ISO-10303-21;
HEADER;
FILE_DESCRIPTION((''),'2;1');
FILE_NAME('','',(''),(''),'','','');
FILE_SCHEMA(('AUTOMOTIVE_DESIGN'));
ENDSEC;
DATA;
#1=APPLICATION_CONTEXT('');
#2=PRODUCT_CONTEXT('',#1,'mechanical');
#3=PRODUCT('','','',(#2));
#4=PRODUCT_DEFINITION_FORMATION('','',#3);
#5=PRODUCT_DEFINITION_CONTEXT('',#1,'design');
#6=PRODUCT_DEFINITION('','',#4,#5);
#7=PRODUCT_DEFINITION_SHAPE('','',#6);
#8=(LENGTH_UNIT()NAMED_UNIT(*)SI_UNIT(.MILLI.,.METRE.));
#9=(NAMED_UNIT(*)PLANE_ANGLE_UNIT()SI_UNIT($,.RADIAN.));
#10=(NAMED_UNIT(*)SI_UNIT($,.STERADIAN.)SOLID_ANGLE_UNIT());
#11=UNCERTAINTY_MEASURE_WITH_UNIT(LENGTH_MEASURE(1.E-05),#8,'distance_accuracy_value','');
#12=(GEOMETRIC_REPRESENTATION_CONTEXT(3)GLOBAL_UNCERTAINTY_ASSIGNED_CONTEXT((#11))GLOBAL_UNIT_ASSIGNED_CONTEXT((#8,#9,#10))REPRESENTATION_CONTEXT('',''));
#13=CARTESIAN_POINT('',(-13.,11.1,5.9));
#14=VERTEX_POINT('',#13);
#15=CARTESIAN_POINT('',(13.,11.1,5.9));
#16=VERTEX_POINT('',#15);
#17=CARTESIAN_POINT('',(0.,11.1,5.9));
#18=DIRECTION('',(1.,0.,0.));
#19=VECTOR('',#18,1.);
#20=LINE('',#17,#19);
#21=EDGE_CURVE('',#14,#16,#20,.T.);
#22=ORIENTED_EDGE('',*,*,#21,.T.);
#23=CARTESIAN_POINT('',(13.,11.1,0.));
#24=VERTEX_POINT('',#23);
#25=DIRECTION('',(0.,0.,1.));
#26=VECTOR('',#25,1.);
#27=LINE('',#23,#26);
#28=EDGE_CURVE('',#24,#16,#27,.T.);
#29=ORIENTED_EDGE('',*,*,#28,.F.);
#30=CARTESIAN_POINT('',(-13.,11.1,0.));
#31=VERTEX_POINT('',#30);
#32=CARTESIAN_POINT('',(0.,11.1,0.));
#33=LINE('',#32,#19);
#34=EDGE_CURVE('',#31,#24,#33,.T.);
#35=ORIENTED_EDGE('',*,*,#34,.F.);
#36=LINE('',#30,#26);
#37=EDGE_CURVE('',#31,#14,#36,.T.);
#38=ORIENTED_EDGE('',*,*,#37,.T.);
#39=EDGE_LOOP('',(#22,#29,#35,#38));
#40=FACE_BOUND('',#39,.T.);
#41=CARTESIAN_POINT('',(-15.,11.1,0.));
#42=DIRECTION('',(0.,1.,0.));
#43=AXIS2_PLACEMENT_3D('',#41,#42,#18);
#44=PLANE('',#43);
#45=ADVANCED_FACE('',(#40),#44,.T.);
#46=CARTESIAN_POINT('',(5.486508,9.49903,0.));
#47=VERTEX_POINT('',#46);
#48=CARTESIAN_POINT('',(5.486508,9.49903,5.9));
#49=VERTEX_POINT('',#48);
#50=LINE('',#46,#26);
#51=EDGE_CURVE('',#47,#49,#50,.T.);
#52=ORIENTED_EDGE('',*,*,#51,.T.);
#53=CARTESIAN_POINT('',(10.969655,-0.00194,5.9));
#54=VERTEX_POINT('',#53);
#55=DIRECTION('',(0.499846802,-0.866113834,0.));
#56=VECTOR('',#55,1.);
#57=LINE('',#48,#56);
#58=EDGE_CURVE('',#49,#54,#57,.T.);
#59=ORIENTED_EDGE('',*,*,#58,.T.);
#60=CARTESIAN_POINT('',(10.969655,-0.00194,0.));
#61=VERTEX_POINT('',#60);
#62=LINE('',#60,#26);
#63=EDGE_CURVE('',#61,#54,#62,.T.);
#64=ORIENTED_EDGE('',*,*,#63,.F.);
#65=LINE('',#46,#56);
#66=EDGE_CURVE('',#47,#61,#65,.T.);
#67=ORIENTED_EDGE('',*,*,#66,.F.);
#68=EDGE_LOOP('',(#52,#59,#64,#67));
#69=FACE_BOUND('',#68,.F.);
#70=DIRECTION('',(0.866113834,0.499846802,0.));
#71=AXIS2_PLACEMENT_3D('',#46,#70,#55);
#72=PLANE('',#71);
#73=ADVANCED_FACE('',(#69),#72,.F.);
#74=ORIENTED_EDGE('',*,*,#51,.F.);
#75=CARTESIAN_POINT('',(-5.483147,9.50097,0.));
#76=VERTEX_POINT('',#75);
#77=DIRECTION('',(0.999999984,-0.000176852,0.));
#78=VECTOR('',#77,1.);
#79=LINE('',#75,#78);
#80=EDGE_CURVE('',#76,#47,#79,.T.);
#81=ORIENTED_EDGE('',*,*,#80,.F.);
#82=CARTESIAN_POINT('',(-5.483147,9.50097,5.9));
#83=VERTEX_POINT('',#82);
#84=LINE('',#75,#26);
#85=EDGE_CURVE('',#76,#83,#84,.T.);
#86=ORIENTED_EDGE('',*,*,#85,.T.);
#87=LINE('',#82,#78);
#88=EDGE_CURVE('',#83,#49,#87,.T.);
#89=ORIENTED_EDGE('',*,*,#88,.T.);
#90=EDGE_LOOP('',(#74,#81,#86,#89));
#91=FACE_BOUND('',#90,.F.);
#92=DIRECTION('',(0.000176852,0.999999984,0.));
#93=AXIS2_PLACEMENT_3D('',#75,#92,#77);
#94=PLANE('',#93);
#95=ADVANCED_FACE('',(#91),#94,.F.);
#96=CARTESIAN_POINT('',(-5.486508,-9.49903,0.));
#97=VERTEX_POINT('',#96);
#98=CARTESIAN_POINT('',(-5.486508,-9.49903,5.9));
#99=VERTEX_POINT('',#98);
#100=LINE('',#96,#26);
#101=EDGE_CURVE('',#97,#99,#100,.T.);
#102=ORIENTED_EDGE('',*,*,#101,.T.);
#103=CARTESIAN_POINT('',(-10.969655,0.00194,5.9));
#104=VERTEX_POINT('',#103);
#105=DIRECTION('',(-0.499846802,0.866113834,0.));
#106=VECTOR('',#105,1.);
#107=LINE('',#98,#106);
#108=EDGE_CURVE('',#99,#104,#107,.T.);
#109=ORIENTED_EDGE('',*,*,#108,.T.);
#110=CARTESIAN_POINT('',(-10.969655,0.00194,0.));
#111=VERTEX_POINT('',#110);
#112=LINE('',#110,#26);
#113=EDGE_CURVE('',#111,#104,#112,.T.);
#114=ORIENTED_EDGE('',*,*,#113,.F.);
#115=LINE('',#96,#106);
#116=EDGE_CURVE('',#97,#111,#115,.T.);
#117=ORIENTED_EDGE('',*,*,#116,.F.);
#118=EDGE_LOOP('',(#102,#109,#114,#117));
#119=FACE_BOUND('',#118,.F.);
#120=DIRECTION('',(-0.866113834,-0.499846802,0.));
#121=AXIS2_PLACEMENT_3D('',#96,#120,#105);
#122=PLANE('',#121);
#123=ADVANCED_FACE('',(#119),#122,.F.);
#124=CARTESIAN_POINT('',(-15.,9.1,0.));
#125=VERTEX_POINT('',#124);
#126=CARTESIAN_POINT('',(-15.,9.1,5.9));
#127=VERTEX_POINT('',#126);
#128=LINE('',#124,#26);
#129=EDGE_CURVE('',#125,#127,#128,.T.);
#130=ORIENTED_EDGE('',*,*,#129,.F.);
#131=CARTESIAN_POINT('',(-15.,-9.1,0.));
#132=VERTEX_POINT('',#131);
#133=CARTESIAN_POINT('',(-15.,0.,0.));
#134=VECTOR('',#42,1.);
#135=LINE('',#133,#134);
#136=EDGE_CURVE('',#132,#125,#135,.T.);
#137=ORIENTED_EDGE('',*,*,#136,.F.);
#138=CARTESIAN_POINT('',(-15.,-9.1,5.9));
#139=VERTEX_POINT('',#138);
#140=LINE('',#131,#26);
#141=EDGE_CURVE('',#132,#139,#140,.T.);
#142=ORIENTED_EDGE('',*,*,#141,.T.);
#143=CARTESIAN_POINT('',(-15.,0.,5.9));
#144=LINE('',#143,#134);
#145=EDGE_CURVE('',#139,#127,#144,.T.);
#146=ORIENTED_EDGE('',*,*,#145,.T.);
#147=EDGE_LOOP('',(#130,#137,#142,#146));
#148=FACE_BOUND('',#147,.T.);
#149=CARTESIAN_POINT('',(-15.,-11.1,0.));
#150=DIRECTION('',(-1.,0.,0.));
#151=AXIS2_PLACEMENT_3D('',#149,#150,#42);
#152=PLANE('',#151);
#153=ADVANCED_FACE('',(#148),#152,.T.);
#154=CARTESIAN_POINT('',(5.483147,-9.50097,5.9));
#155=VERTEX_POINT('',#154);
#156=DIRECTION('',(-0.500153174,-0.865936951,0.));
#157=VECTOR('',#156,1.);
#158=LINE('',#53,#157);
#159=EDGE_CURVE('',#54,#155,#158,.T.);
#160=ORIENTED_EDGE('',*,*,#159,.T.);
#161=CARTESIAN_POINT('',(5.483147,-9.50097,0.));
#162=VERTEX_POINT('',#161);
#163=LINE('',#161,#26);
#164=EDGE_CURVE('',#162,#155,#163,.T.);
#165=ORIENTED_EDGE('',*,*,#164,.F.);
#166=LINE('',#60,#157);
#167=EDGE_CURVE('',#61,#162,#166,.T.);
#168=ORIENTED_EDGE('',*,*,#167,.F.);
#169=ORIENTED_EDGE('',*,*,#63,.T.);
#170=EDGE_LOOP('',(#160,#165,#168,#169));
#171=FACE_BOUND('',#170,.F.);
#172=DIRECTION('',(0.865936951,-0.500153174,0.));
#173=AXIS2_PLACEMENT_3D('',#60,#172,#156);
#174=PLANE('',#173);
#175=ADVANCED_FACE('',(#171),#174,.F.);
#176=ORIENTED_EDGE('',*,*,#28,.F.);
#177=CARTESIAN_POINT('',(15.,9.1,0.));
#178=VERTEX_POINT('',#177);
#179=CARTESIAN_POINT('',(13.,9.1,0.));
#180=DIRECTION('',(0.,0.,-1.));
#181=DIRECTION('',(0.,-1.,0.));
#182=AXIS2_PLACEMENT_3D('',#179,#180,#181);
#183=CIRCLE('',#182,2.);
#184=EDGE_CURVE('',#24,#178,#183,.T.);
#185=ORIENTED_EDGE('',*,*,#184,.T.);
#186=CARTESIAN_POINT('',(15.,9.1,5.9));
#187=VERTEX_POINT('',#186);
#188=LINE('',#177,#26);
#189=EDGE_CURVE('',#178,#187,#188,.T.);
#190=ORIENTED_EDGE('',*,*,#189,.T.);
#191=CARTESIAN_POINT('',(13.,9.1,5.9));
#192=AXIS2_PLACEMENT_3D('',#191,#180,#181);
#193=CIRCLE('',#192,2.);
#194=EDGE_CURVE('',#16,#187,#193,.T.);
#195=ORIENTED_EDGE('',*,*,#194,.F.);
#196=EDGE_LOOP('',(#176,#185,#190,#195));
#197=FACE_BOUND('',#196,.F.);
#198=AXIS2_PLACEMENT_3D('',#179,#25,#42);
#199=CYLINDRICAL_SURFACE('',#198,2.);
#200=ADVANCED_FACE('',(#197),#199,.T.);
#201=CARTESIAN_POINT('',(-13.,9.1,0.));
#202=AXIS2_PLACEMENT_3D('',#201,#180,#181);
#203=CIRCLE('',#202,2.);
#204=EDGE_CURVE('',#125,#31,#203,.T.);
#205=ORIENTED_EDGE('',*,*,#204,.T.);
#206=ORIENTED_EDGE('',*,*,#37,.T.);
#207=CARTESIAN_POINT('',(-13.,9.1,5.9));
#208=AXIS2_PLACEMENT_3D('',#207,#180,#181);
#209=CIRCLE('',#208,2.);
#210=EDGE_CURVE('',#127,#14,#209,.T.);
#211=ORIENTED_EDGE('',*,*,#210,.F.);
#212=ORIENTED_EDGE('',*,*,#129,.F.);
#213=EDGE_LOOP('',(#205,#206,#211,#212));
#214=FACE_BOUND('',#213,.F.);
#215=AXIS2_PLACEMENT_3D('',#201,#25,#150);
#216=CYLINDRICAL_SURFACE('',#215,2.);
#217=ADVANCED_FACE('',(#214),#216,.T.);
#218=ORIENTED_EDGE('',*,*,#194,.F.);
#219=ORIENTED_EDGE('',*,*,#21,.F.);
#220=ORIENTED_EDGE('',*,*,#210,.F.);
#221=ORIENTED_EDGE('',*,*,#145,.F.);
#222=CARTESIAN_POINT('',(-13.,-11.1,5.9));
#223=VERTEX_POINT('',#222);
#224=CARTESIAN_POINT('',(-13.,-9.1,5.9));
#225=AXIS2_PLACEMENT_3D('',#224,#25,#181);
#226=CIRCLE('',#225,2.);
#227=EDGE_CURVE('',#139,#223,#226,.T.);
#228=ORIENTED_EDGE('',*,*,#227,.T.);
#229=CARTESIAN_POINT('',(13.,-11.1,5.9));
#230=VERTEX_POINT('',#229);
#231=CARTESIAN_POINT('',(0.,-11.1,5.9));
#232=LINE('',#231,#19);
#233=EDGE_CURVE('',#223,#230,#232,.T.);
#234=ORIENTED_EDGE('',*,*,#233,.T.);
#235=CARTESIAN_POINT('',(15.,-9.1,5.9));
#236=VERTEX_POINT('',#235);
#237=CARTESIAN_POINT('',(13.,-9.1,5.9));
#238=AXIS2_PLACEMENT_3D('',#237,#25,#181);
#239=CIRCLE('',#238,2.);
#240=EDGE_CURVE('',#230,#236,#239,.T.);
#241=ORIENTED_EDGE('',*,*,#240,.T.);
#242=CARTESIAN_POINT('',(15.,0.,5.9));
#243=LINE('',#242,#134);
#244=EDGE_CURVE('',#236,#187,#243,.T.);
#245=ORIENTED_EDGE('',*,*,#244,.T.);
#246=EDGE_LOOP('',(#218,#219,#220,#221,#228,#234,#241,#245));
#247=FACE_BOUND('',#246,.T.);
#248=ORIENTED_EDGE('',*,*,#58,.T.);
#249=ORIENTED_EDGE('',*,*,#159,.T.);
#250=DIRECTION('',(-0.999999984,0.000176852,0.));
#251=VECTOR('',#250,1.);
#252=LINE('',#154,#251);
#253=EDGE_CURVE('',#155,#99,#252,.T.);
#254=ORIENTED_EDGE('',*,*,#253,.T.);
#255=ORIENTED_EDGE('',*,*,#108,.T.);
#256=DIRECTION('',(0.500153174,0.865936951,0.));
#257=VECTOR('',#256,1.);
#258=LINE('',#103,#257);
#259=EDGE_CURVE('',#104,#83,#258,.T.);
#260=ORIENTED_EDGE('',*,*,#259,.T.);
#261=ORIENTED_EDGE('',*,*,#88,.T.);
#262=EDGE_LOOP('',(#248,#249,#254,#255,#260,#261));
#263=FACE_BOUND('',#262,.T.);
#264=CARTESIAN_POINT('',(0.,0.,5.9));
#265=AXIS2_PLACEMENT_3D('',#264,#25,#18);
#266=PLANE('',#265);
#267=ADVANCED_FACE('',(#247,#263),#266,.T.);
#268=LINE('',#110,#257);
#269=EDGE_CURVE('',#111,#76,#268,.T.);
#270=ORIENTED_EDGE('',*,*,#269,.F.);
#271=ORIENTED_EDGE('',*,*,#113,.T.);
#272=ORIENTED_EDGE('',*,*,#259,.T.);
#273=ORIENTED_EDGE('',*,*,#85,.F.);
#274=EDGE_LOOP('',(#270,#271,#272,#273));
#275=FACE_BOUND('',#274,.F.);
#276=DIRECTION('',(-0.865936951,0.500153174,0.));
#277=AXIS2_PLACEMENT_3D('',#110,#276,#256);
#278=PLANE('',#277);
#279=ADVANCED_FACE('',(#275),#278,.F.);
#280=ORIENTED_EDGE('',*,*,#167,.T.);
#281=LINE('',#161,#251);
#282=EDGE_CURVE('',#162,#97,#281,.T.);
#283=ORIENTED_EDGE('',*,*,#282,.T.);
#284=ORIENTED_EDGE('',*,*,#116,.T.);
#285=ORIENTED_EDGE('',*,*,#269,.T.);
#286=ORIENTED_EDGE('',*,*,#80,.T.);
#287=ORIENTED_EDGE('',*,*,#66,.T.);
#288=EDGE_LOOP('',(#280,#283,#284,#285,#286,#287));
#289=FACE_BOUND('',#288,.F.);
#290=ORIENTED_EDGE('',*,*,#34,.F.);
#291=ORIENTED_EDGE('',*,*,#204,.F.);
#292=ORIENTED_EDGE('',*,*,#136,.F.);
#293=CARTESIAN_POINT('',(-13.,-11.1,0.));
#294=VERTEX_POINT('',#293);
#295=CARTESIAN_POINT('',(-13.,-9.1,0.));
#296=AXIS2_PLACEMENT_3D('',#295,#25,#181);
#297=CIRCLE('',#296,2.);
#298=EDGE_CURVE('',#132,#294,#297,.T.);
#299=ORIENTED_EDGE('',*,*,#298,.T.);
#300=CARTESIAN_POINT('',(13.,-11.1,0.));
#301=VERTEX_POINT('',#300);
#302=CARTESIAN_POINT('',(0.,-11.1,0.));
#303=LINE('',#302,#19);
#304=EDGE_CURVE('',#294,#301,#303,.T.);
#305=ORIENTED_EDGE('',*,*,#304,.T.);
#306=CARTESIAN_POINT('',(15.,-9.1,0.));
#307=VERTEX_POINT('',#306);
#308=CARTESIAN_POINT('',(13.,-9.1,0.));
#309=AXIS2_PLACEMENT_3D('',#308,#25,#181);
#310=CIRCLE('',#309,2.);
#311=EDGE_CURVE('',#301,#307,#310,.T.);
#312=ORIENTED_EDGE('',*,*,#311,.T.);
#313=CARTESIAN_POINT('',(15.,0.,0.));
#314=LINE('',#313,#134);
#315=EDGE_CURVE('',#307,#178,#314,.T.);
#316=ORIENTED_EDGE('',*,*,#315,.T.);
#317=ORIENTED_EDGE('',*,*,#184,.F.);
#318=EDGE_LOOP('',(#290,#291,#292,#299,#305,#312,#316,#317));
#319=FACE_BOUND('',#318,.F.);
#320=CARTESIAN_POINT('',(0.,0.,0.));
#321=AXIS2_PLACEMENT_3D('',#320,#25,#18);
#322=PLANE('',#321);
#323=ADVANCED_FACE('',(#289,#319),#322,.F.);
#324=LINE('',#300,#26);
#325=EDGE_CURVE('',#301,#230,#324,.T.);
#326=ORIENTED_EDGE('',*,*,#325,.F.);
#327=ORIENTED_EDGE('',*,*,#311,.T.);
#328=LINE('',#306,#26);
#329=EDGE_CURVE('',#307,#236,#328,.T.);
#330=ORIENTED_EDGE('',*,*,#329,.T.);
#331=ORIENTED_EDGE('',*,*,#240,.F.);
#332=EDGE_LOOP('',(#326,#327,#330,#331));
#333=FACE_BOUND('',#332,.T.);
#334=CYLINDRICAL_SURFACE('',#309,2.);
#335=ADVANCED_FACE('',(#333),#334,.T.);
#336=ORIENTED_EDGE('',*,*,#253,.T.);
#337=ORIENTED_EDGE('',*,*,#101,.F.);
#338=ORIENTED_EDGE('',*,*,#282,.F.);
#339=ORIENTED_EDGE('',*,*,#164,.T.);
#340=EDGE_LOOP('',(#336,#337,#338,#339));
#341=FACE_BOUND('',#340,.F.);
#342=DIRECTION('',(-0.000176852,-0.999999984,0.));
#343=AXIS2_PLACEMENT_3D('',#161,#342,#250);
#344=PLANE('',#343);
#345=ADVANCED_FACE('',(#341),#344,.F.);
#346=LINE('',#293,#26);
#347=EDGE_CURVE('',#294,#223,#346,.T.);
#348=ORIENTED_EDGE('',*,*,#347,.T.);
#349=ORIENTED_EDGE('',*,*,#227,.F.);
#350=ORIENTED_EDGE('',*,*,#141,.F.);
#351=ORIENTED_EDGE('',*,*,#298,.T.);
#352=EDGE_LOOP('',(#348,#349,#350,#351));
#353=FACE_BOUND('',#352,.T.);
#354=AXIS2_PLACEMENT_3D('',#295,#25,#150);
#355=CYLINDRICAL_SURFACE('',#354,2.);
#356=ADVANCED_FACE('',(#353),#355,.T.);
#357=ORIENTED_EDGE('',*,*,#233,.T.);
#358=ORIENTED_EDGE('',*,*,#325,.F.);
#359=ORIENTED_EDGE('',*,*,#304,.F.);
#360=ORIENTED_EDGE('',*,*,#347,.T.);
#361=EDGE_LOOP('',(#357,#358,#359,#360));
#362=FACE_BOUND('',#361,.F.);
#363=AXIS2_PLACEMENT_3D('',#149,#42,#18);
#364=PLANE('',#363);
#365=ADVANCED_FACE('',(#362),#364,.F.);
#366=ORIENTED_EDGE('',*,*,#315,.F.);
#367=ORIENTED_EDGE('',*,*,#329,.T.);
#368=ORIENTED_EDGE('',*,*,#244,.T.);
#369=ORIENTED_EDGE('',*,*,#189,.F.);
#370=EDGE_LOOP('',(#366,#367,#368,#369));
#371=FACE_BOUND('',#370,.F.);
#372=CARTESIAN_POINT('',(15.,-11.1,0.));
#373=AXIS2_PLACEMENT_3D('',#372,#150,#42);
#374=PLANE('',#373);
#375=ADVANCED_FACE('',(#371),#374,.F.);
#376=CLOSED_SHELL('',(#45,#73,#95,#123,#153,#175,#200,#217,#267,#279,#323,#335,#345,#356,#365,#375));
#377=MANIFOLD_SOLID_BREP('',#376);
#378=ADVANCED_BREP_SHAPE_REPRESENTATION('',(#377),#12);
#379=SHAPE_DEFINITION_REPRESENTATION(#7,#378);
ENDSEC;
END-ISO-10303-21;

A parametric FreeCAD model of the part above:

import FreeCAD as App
import Part
import Sketcher
Q = App.Units.Quantity


def edges_at(feature, points):
    """Names of the edges that pass closest to the given points."""
    edges = feature.Shape.Edges
    near = lambda p: min(range(len(edges)), key=lambda i: edges[i].distToShape(Part.Vertex(*p))[0])
    return sorted({f"Edge{near(p) + 1}" for p in points})


def add_polygon(sketch, points):
    """Adds a closed chain of lines whose ends are joined by coincident constraints."""
    first, n = sketch.GeometryCount, len(points)
    for a, b in zip(points, points[1:] + points[:1]):
        sketch.addGeometry(Part.LineSegment(App.Vector(*a, 0), App.Vector(*b, 0)), False)
    for i in range(n):
        sketch.addConstraint(Sketcher.Constraint("Coincident", first + i, 2, first + (i + 1) % n, 1))

doc = App.newDocument("Part")
body = doc.addObject("PartDesign::Body", "Body")

# Sketch on XY plane
sketch1 = body.newObject("Sketcher::SketchObject", "Sketch")
sketch1.AttachmentSupport = (doc.getObject("XY_Plane"), [""])
sketch1.MapMode = "FlatFace"
add_polygon(sketch1, [(-15, 11.1), (-15, -11.1), (15, -11.1), (15, 11.1)])  # lines 0-3
add_polygon(sketch1, [(-10.969655, 0.00194), (-5.483147, 9.50097), (5.486508, 9.49903), (10.969655, -0.00194), (5.483147, -9.50097), (-5.486508, -9.49903)])  # lines 4-9
sketch1.addConstraint(Sketcher.Constraint("Vertical", 0))
sketch1.addConstraint(Sketcher.Constraint("Horizontal", 1))
sketch1.addConstraint(Sketcher.Constraint("Vertical", 2))
sketch1.addConstraint(Sketcher.Constraint("Horizontal", 3))
sketch1.addConstraint(Sketcher.Constraint("Symmetric", 0, 2, 2, 2, -1, 1))
sketch1.addConstraint(Sketcher.Constraint("Symmetric", 4, 2, 7, 2, -1, 1))
sketch1.addConstraint(Sketcher.Constraint("Symmetric", 5, 2, 8, 2, -1, 1))
sketch1.addConstraint(Sketcher.Constraint("Symmetric", 6, 2, 9, 2, -1, 1))
sketch1.addConstraint(Sketcher.Constraint("Equal", 4, 5))
sketch1.addConstraint(Sketcher.Constraint("Equal", 5, 6))
sketch1.addConstraint(Sketcher.Constraint("DistanceX", 1, 1, 1, 2, Q("30 mm")))
sketch1.addConstraint(Sketcher.Constraint("DistanceY", 0, 2, 0, 1, Q("22.2 mm")))
sketch1.addConstraint(Sketcher.Constraint("DistanceY", 7, 2, 5, 2, Q("19 mm")))
sketch1.addConstraint(Sketcher.Constraint("DistanceX", 4, 2, 6, 2, Q("16.452802 mm")))
sketch1.addConstraint(Sketcher.Constraint("DistanceY", -1, 1, 4, 2, Q("9.50097 mm")))
sketch1.addConstraint(Sketcher.Constraint("DistanceY", 6, 2, -1, 1, Q("0.00194 mm")))
pad1 = body.newObject("PartDesign::Pad", "Pad")
pad1.Profile = sketch1
pad1.Length = 5.9
doc.recompute()

fillet = body.newObject("PartDesign::Fillet", "Fillet")
fillet.Base = (pad1, edges_at(pad1, [
    (15, 11.1, 2.95),
    (15, -11.1, 2.95),
    (-15, 11.1, 2.95),
    (-15, -11.1, 2.95),
]))
fillet.Radius = 2

doc.recompute()
